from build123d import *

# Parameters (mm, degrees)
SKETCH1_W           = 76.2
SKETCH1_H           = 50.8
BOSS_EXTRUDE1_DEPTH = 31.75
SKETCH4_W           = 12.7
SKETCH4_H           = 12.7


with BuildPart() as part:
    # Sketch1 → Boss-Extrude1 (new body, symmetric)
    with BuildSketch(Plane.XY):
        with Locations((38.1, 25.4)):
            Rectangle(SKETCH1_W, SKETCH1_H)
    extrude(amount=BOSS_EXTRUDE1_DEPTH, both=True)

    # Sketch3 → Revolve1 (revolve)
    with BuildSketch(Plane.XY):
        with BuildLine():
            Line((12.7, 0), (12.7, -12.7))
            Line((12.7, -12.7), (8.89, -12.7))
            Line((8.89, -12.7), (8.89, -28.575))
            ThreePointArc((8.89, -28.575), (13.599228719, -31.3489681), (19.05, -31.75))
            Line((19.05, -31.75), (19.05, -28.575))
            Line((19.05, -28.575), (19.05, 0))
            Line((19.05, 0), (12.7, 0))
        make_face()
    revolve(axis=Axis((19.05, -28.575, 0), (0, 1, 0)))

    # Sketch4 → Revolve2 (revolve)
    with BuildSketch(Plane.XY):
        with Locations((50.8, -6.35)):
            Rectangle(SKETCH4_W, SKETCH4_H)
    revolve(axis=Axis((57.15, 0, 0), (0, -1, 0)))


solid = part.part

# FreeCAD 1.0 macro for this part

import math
import FreeCAD as App
import Part
import Sketcher
Q = App.Units.Quantity

doc = App.newDocument("Part")
body = doc.addObject("PartDesign::Body", "Body")

# Sketch on XY plane
sketch1 = body.newObject("Sketcher::SketchObject", "Sketch")
sketch1.AttachmentSupport = (doc.getObject("XY_Plane"), [""])
sketch1.MapMode = "FlatFace"
sketch1.addGeometry([
    Part.LineSegment(App.Vector(0, 51, 0), App.Vector(0, 0, 0)),
    Part.LineSegment(App.Vector(0, 0, 0), App.Vector(76, 0, 0)),
    Part.LineSegment(App.Vector(76, 0, 0), App.Vector(76, 51, 0)),
    Part.LineSegment(App.Vector(76, 51, 0), App.Vector(0, 51, 0)),
], False)
sketch1.addConstraint([
    Sketcher.Constraint("Coincident", 0, 2, 1, 1),
    Sketcher.Constraint("Coincident", 1, 2, 2, 1),
    Sketcher.Constraint("Coincident", 2, 2, 3, 1),
    Sketcher.Constraint("Coincident", 3, 2, 0, 1),
    Sketcher.Constraint("Vertical", 0),
    Sketcher.Constraint("Horizontal", 1),
    Sketcher.Constraint("Vertical", 2),
    Sketcher.Constraint("Horizontal", 3),
    Sketcher.Constraint("Coincident", 0, 2, -1, 1),
    Sketcher.Constraint("DistanceX", 1, 1, 1, 2, Q("3 in")),
    Sketcher.Constraint("DistanceY", 0, 2, 0, 1, Q("2 in")),
])
pad1 = body.newObject("PartDesign::Pad", "Pad")
pad1.Profile = sketch1
pad1.Length = Q("2.5 in")
pad1.Midplane = True

# Sketch on XY plane
sketch2 = body.newObject("Sketcher::SketchObject", "Sketch001")
sketch2.AttachmentSupport = (doc.getObject("XY_Plane"), [""])
sketch2.MapMode = "FlatFace"
sketch2.addGeometry([
    Part.LineSegment(App.Vector(12.7, 0, 0), App.Vector(12.7, -12.7, 0)),  # 0
    Part.LineSegment(App.Vector(12.7, -12.7, 0), App.Vector(8.9, -12.7, 0)),  # 1
    Part.LineSegment(App.Vector(8.9, -12.7, 0), App.Vector(8.9, -28.6, 0)),  # 2
    Part.ArcOfCircle(Part.Circle(App.Vector(17.2, -19.9, 0), App.Vector(0, 0, 1), 12), math.radians(-134), math.radians(-81)),  # 3
    Part.LineSegment(App.Vector(19.1, -31.8, 0), App.Vector(19.1, 0, 0)),  # 4
    Part.LineSegment(App.Vector(19.1, 0, 0), App.Vector(12.7, 0, 0)),  # 5
], False)
sketch2.addGeometry(Part.LineSegment(App.Vector(19.1, -31.8, 0), App.Vector(19.1, 0, 0)), True)  # axis
sketch2.addConstraint([
    Sketcher.Constraint("Coincident", 0, 2, 1, 1),
    Sketcher.Constraint("Coincident", 1, 2, 2, 1),
    Sketcher.Constraint("Coincident", 2, 2, 3, 1),
    Sketcher.Constraint("Coincident", 3, 2, 4, 1),
    Sketcher.Constraint("Coincident", 4, 2, 5, 1),
    Sketcher.Constraint("Coincident", 5, 2, 0, 1),
    Sketcher.Constraint("Vertical", 0),
    Sketcher.Constraint("Horizontal", 1),
    Sketcher.Constraint("Vertical", 2),
    Sketcher.Constraint("Vertical", 4),
    Sketcher.Constraint("Horizontal", 5),
    Sketcher.Constraint("Vertical", 6),
    Sketcher.Constraint("Coincident", 6, 1, 3, 2),
    Sketcher.Constraint("PointOnObject", 4, 2, -1),
    Sketcher.Constraint("PointOnObject", 6, 2, -1),
    Sketcher.Constraint("DistanceY", 0, 2, 0, 1, Q("0.5 in")),
    Sketcher.Constraint("DistanceX", 1, 2, 1, 1, Q("0.15 in")),
    Sketcher.Constraint("DistanceX", 5, 2, 5, 1, Q("0.25 in")),
    Sketcher.Constraint("DistanceY", 4, 1, 4, 2, Q("1.25 in")),
    Sketcher.Constraint("DistanceX", -1, 1, 0, 2, Q("0.5 in")),
    Sketcher.Constraint("DistanceY", 2, 2, 2, 1, Q("0.625 in")),
    Sketcher.Constraint("Radius", 3, Q("12.015482 mm")),
])
revolution = body.newObject("PartDesign::Revolution", "Revolution")
revolution.Profile = sketch2
revolution.ReferenceAxis = (sketch2, ["Axis0"])
revolution.Angle = 360

# Sketch on XY plane
sketch3 = body.newObject("Sketcher::SketchObject", "Sketch002")
sketch3.AttachmentSupport = (doc.getObject("XY_Plane"), [""])
sketch3.MapMode = "FlatFace"
sketch3.addGeometry([
    Part.LineSegment(App.Vector(44, 0, 0), App.Vector(44, -13, 0)),
    Part.LineSegment(App.Vector(44, -13, 0), App.Vector(57, -13, 0)),
    Part.LineSegment(App.Vector(57, -13, 0), App.Vector(57, 0, 0)),
    Part.LineSegment(App.Vector(57, 0, 0), App.Vector(44, 0, 0)),
], False)
sketch3.addGeometry(Part.LineSegment(App.Vector(57, 0, 0), App.Vector(57, -13, 0)), True)  # axis
sketch3.addConstraint([
    Sketcher.Constraint("Coincident", 0, 2, 1, 1),
    Sketcher.Constraint("Coincident", 1, 2, 2, 1),
    Sketcher.Constraint("Coincident", 2, 2, 3, 1),
    Sketcher.Constraint("Coincident", 3, 2, 0, 1),
    Sketcher.Constraint("Vertical", 0),
    Sketcher.Constraint("Horizontal", 1),
    Sketcher.Constraint("Vertical", 2),
    Sketcher.Constraint("Horizontal", 3),
    Sketcher.Constraint("Vertical", 4),
    Sketcher.Constraint("Coincident", 4, 1, 2, 2),
    Sketcher.Constraint("PointOnObject", 2, 2, -1),
    Sketcher.Constraint("Horizontal", 0, 2, 4, 2),
    Sketcher.Constraint("Equal", 3, 0),
    Sketcher.Constraint("DistanceX", 1, 1, 1, 2, Q("0.5 in")),
    Sketcher.Constraint("DistanceX", -1, 1, 0, 2, Q("1.75 in")),
])
revolution2 = body.newObject("PartDesign::Revolution", "Revolution001")
revolution2.Profile = sketch3
revolution2.ReferenceAxis = (sketch3, ["Axis0"])
revolution2.Angle = 360

doc.recompute()
